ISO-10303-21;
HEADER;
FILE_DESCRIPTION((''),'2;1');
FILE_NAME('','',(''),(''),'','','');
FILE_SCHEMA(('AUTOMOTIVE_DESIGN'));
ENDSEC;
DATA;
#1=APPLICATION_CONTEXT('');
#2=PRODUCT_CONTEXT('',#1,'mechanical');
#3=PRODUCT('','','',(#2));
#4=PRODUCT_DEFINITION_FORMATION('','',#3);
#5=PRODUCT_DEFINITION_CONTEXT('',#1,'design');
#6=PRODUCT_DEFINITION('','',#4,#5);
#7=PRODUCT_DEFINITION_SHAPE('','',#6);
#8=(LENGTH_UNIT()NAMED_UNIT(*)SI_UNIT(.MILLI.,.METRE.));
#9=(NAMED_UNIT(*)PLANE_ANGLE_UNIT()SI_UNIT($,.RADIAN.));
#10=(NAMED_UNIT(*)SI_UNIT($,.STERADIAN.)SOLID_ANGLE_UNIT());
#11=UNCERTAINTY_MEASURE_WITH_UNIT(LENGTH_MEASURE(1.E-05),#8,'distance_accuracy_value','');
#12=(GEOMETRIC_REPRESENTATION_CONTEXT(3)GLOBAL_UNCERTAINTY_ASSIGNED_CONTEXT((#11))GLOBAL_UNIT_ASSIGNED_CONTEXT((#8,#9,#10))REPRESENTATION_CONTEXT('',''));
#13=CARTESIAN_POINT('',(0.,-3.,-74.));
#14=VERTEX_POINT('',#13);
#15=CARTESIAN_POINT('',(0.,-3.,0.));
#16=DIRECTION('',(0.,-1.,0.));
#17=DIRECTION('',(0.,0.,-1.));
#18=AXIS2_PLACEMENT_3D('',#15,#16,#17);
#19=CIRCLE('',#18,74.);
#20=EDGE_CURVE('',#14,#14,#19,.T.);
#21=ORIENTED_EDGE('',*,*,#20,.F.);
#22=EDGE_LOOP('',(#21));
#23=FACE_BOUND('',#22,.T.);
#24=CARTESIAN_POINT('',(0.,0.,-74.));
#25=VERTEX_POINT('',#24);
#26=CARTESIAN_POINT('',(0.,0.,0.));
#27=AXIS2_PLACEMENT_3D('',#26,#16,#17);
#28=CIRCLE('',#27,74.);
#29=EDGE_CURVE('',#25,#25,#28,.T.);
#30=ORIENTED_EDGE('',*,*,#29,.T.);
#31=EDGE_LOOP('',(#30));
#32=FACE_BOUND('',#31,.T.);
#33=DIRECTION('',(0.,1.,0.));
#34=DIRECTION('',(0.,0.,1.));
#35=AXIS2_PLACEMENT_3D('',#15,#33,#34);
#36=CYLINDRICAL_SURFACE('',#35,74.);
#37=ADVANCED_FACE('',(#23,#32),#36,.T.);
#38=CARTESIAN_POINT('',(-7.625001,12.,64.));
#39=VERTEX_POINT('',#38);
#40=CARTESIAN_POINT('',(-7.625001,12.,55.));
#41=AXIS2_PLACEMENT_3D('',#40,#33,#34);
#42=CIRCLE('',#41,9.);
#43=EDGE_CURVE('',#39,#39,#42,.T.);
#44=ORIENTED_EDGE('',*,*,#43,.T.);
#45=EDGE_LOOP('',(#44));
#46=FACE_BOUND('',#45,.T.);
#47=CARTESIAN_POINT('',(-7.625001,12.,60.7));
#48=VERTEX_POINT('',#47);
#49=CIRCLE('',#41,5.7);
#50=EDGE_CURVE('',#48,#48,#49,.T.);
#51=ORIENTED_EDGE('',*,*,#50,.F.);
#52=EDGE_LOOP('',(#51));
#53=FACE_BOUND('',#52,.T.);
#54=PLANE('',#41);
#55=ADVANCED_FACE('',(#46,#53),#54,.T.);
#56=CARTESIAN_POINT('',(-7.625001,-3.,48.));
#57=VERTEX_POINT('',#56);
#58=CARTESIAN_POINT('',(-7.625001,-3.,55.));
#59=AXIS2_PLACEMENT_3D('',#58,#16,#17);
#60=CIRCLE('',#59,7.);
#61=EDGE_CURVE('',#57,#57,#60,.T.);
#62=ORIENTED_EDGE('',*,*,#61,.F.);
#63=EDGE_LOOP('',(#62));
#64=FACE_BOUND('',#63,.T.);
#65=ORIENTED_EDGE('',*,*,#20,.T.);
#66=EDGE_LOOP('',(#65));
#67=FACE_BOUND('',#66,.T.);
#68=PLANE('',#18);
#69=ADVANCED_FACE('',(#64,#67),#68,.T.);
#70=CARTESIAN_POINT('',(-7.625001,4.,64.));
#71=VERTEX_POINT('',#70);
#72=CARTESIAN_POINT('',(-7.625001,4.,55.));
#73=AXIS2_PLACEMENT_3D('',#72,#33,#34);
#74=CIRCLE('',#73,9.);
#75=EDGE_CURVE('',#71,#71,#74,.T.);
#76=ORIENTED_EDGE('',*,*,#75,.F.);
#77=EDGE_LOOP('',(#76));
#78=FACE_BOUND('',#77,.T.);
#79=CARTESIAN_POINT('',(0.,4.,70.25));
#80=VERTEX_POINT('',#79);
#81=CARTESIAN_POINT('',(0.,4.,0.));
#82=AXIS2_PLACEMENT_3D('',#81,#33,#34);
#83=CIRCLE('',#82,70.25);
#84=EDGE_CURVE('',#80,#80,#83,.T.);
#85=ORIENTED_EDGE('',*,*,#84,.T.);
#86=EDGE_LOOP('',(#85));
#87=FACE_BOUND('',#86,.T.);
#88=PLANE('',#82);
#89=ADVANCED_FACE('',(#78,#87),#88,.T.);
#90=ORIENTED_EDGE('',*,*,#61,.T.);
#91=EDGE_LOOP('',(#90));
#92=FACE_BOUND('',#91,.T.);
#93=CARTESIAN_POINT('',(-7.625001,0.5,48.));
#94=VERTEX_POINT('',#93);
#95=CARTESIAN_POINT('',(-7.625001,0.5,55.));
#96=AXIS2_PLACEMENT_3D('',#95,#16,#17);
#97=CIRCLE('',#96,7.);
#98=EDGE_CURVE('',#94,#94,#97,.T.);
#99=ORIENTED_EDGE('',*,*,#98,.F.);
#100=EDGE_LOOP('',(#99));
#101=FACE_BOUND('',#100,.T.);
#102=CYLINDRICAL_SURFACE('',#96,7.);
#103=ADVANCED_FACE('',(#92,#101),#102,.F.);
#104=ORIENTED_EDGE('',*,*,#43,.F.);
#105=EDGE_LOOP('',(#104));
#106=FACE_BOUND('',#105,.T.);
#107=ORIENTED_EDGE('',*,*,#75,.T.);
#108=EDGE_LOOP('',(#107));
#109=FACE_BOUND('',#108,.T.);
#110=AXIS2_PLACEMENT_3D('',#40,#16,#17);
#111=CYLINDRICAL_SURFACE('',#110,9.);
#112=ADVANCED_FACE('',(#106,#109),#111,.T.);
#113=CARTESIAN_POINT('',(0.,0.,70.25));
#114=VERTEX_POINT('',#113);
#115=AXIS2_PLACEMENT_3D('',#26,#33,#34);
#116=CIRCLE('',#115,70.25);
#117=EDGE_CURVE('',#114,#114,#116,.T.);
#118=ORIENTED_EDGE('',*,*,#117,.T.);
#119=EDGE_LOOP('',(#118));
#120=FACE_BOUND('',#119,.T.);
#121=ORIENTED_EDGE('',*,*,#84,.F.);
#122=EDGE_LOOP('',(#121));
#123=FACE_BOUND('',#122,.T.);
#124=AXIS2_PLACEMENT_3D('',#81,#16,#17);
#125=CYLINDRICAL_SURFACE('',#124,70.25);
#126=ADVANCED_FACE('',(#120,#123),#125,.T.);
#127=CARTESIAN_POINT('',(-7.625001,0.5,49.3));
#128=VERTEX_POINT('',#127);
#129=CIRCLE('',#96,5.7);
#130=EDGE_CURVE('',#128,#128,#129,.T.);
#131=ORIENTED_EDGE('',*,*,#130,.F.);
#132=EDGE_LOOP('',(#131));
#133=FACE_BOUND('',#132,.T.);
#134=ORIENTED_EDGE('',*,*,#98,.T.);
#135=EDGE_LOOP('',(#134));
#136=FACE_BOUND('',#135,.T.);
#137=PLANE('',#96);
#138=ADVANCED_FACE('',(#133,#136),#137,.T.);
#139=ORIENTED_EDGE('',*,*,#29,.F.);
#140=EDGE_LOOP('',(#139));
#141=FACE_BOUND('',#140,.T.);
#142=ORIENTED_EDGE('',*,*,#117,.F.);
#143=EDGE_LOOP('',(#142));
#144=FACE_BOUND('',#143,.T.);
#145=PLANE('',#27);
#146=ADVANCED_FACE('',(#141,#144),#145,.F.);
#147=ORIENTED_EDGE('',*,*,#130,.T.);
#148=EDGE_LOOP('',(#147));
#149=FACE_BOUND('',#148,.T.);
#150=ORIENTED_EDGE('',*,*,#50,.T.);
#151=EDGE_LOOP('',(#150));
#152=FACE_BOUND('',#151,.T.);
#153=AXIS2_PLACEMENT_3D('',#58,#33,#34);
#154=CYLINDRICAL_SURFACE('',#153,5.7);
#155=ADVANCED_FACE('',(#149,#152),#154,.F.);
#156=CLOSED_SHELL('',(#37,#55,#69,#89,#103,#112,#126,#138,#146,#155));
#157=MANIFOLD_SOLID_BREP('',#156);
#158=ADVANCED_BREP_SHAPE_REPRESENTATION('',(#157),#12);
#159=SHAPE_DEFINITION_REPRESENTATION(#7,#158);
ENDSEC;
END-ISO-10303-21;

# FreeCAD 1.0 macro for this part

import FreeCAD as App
import Part
import Sketcher

V = App.Vector

doc = App.newDocument("Part")
body = doc.addObject("PartDesign::Body", "Body")

sketch1 = body.newObject("Sketcher::SketchObject", "Sketch")
sketch1.AttachmentSupport = (doc.getObject("XZ_Plane"), [""])
sketch1.MapMode = "FlatFace"
sketch1.addGeometry(Part.Circle(V(0, 0, 0), V(0, 0, 1), 70), False)
sketch1.addConstraint([
    Sketcher.Constraint("Coincident", 0, 3, -1, 1),
    Sketcher.Constraint("Diameter", 0, 140.5),
])
pad1 = body.newObject("PartDesign::Pad", "Pad")
pad1.Profile = sketch1
pad1.Length = 4
pad1.Reversed = True

sketch2 = body.newObject("Sketcher::SketchObject", "Sketch001")
sketch2.AttachmentSupport = (doc.getObject("XZ_Plane"), [""])
sketch2.MapMode = "FlatFace"
sketch2.addGeometry(Part.Circle(V(0, 0, 0), V(0, 0, 1), 74), False)
sketch2.addConstraint([
    Sketcher.Constraint("Coincident", 0, 3, -1, 1),
    Sketcher.Constraint("Diameter", 0, 148.0),
])
pad2 = body.newObject("PartDesign::Pad", "Pad001")
pad2.Profile = sketch2
pad2.Length = 3

sketch3 = body.newObject("Sketcher::SketchObject", "Sketch002")
sketch3.AttachmentSupport = (doc.getObject("XZ_Plane"), [""])
sketch3.MapMode = "FlatFace"
sketch3.AttachmentOffset = App.Placement(V(0, 0, -4), App.Rotation())
sketch3.addGeometry(Part.Circle(V(-8, 55, 0), V(0, 0, 1), 9), False)
sketch3.addConstraint([
    Sketcher.Constraint("Diameter", 0, 18.0),
    Sketcher.Constraint("DistanceY", -1, 1, 0, 3, 55.0),
    Sketcher.Constraint("DistanceX", 0, 3, -1, 1, 7.625001),
])
pad3 = body.newObject("PartDesign::Pad", "Pad002")
pad3.Profile = sketch3
pad3.Length = 8
pad3.Reversed = True

sketch4 = body.newObject("Sketcher::SketchObject", "Sketch003")
sketch4.AttachmentSupport = (doc.getObject("XZ_Plane"), [""])
sketch4.MapMode = "FlatFace"
sketch4.AttachmentOffset = App.Placement(V(0, 0, 3), App.Rotation())
sketch4.addGeometry(Part.Circle(V(-8, 55, 0), V(0, 0, 1), 7), False)
sketch4.addConstraint([
    Sketcher.Constraint("Diameter", 0, 14.0),
    Sketcher.Constraint("DistanceY", -1, 1, 0, 3, 55.0),
    Sketcher.Constraint("DistanceX", 0, 3, -1, 1, 7.625001),
])
pocket1 = body.newObject("PartDesign::Pocket", "Pocket")
pocket1.Profile = sketch4
pocket1.Length = 3.5

sketch5 = body.newObject("Sketcher::SketchObject", "Sketch004")
sketch5.AttachmentSupport = (doc.getObject("XZ_Plane"), [""])
sketch5.MapMode = "FlatFace"
sketch5.AttachmentOffset = App.Placement(V(0, 0, -12), App.Rotation())
sketch5.addGeometry(Part.Circle(V(-8, 55, 0), V(0, 0, 1), 6), False)
sketch5.addConstraint([
    Sketcher.Constraint("Diameter", 0, 11.4),
    Sketcher.Constraint("DistanceY", -1, 1, 0, 3, 55.0),
    Sketcher.Constraint("DistanceX", 0, 3, -1, 1, 7.625001),
])
pocket2 = body.newObject("PartDesign::Pocket", "Pocket001")
pocket2.Profile = sketch5
pocket2.Type = "ThroughAll"
pocket2.Reversed = True

doc.recompute()
